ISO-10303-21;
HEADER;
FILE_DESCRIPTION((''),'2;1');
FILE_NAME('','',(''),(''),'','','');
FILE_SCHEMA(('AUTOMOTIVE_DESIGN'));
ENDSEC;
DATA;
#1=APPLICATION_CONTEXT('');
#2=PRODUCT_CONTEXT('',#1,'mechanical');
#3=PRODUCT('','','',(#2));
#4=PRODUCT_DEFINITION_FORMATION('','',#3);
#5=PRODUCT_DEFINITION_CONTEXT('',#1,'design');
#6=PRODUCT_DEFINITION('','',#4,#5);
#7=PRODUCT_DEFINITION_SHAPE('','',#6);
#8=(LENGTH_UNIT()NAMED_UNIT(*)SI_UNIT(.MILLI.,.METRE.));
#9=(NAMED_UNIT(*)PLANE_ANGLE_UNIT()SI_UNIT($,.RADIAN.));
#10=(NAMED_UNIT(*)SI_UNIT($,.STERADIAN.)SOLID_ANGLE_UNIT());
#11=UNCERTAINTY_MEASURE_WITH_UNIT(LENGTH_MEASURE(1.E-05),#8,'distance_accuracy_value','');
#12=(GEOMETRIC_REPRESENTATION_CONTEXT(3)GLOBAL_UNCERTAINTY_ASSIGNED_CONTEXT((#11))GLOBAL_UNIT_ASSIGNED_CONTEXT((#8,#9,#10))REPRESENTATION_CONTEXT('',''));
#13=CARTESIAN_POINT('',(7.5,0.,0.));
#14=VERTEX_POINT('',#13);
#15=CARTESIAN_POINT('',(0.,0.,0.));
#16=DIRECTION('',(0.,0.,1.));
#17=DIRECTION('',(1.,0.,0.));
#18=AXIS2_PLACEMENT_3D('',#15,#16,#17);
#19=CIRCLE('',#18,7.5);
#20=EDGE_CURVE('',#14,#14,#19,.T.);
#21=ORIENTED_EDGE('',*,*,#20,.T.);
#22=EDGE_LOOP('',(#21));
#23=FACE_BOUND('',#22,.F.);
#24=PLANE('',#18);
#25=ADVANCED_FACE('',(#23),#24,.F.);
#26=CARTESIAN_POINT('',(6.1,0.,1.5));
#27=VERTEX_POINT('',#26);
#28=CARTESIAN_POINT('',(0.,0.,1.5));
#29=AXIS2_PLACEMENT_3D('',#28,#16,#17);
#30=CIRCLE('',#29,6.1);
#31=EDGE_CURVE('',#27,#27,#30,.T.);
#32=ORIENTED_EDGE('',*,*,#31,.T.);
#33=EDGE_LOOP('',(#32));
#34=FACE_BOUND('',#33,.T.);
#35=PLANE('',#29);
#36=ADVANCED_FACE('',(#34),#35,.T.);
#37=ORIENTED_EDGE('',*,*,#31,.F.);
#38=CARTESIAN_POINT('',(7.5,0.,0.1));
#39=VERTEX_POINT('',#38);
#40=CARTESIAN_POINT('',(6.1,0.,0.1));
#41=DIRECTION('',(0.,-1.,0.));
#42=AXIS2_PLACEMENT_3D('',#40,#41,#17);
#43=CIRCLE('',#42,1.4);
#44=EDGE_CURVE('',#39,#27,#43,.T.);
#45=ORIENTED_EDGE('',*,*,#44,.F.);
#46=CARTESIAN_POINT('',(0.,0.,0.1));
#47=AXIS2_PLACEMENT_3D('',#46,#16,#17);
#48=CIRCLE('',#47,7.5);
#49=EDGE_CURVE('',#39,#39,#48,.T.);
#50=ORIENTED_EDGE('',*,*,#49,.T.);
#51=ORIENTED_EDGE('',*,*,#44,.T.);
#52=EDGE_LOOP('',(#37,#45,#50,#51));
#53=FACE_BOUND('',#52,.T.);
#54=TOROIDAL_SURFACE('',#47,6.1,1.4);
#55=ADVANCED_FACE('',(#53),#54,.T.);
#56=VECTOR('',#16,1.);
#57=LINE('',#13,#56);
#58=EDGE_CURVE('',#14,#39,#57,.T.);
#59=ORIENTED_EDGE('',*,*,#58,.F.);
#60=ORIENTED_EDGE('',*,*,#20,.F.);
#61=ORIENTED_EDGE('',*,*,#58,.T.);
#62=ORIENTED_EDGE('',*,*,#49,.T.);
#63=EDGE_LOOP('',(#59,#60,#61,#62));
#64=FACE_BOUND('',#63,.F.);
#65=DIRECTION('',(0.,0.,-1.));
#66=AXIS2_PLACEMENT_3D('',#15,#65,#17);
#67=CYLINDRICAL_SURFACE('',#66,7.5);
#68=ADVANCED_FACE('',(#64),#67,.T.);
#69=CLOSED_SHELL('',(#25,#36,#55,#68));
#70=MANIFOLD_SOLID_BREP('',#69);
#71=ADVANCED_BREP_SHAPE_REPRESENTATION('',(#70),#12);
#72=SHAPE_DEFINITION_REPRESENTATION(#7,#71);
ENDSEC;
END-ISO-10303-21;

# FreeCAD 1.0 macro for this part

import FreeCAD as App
import Part
import Sketcher
from FreeCAD import Vector


def edges_at(feature, points):
    """Names of the edges that pass closest to the given points."""
    edges = feature.Shape.Edges
    near = lambda p: min(range(len(edges)), key=lambda i: edges[i].distToShape(Part.Vertex(*p))[0])
    return sorted({f"Edge{near(p) + 1}" for p in points})

doc = App.newDocument("Part")
body = doc.addObject("PartDesign::Body", "Body")

sketch1 = doc.addObject("Sketcher::SketchObject", "Sketch")
body.addObject(sketch1)
sketch1.AttachmentSupport = (doc.XY_Plane, [""])
sketch1.MapMode = "FlatFace"
sketch1.addGeometry(Part.Circle(Vector(0, 0, 0), Vector(0, 0, 1), 7.5), False)
sketch1.addConstraint(Sketcher.Constraint("Coincident", 0, 3, -1, 1))
sketch1.addConstraint(Sketcher.Constraint("Diameter", 0, 15.0))
pad1 = doc.addObject("PartDesign::Pad", "Pad")
body.addObject(pad1)
pad1.Profile = sketch1
pad1.Length = 1.5
doc.recompute()

fillet = doc.addObject("PartDesign::Fillet", "Fillet")
body.addObject(fillet)
fillet.Base = (pad1, edges_at(pad1, [(-7.5, 0, 1.5)]))
fillet.Radius = 1.4

doc.recompute()
